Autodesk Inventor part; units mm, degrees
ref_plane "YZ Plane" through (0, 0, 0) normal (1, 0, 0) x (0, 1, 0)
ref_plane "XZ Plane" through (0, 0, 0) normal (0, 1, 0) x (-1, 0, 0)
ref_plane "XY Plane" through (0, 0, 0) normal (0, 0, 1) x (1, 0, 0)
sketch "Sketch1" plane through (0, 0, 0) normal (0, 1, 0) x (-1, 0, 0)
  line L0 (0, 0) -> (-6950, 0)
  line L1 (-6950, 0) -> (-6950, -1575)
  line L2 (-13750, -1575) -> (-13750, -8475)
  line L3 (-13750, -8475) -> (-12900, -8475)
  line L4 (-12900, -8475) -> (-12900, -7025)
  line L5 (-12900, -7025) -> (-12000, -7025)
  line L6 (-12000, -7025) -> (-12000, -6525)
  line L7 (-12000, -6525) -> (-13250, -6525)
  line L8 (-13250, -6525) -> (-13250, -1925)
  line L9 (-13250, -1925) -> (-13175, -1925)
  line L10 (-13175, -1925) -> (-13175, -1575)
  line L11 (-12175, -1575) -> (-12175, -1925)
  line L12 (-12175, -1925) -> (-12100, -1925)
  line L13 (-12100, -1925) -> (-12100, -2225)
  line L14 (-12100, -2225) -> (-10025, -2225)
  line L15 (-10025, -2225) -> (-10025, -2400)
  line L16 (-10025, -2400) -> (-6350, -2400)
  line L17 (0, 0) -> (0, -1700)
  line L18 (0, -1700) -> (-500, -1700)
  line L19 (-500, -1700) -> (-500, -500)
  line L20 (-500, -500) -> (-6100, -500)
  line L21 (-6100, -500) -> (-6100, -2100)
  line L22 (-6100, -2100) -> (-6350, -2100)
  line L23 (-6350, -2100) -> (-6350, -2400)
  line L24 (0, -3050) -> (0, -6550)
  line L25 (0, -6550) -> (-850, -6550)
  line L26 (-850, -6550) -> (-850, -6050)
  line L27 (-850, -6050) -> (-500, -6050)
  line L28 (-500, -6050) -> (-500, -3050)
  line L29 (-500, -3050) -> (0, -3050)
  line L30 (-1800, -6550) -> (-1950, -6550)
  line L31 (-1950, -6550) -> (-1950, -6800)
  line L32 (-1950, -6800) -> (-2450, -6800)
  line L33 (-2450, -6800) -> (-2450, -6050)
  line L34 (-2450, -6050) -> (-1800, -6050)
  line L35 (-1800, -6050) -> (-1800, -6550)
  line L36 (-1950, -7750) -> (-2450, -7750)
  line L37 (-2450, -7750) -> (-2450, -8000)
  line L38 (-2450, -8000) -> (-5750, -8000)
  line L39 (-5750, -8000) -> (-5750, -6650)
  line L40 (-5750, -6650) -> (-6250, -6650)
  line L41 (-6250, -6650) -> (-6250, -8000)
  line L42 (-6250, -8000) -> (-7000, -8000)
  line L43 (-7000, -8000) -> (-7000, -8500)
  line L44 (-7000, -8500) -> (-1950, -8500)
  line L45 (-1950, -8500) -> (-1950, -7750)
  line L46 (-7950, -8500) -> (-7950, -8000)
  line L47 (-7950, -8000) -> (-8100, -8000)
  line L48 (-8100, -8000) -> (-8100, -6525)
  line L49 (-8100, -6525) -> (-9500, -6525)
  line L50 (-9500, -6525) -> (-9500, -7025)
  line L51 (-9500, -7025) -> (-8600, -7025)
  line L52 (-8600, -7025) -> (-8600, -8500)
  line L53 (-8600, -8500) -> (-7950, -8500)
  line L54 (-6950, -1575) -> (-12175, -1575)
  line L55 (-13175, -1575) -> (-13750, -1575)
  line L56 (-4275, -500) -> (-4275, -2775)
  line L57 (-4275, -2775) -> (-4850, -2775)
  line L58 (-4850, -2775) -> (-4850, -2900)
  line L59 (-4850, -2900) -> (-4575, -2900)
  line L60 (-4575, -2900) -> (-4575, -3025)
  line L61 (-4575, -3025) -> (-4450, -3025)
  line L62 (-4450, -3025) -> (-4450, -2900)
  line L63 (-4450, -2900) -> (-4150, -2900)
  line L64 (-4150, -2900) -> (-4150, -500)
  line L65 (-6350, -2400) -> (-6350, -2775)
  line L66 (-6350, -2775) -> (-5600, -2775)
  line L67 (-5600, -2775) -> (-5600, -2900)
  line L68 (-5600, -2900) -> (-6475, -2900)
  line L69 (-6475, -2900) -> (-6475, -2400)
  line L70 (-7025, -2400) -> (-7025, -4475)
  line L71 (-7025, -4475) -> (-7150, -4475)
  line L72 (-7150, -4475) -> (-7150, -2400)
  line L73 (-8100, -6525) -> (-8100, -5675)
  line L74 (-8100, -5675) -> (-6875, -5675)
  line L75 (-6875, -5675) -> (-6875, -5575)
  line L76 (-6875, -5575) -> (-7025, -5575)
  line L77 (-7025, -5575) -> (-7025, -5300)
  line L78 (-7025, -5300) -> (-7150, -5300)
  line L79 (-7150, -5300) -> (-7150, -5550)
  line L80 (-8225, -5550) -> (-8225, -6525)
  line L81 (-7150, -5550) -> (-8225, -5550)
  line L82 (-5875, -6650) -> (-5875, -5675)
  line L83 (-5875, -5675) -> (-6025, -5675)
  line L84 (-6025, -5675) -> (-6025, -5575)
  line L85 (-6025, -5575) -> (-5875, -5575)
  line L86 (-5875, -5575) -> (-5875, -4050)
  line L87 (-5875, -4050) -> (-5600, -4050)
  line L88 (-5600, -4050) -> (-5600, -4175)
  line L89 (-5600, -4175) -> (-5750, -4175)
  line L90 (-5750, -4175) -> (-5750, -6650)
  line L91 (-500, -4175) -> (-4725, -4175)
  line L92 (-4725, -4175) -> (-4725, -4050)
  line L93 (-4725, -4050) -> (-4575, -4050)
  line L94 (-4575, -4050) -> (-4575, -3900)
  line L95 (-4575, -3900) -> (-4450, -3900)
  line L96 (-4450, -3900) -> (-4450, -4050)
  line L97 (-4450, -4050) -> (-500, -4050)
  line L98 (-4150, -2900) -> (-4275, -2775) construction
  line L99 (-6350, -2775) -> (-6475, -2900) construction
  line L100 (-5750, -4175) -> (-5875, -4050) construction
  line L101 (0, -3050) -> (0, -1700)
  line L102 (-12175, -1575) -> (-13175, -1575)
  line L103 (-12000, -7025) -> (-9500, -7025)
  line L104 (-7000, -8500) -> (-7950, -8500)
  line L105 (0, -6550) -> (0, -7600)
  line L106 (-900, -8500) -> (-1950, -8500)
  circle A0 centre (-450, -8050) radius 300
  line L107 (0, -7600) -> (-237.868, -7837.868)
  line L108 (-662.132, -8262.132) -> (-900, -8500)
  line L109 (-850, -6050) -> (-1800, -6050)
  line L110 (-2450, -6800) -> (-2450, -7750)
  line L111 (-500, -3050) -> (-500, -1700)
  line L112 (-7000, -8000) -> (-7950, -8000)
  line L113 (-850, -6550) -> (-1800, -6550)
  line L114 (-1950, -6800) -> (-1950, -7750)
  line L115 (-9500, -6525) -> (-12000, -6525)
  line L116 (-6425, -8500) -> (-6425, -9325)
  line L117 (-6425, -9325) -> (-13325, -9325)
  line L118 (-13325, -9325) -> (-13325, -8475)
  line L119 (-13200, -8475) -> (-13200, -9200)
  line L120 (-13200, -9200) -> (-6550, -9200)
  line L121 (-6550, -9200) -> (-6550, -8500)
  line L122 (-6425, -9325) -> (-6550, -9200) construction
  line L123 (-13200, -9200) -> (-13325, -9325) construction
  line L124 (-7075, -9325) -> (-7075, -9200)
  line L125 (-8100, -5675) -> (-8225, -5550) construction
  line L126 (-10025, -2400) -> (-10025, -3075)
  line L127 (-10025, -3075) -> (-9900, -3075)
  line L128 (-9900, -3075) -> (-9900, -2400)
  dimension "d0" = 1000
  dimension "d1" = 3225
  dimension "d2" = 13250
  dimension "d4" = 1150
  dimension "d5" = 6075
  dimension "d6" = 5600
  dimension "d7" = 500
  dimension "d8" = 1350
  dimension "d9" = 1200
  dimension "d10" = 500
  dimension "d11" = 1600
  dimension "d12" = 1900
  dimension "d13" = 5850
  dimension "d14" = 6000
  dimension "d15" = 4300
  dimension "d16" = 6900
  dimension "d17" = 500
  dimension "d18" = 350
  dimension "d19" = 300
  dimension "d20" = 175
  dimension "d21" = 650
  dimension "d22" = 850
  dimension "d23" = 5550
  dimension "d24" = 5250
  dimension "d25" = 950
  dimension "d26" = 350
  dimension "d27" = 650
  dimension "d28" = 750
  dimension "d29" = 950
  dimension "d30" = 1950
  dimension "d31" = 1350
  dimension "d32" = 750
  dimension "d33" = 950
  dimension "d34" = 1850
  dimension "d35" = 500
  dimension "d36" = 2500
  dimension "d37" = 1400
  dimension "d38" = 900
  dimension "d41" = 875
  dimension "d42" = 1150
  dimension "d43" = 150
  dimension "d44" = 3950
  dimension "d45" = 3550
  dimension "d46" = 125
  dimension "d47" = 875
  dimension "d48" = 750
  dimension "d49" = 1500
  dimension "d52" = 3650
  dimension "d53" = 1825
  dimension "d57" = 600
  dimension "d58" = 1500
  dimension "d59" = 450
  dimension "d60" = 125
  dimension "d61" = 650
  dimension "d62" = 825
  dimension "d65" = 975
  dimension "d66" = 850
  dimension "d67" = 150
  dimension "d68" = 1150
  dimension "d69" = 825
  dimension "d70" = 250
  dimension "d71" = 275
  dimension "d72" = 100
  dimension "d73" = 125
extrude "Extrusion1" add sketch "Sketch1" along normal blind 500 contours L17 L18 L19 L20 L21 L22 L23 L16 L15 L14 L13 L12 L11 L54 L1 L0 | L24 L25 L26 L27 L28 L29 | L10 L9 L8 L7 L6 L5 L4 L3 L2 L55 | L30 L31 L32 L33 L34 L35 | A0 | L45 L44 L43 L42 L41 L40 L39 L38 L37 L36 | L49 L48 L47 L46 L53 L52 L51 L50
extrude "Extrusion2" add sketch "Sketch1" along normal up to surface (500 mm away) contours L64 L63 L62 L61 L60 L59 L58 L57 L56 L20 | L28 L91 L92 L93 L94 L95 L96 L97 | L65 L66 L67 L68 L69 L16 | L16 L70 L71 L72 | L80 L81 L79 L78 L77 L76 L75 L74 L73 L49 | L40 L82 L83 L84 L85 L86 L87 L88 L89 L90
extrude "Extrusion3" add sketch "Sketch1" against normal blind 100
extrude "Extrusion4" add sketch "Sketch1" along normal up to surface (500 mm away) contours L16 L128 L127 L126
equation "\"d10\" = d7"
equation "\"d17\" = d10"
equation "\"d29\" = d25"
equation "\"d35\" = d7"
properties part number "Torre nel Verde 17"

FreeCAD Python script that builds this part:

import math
import FreeCAD as App
import Part
import Sketcher
from FreeCAD import Vector
Q = App.Units.Quantity


def add_polygon(sketch, points):
    """Adds a closed chain of lines whose ends are joined by coincident constraints."""
    first, n = sketch.GeometryCount, len(points)
    for a, b in zip(points, points[1:] + points[:1]):
        sketch.addGeometry(Part.LineSegment(App.Vector(*a, 0), App.Vector(*b, 0)), False)
    for i in range(n):
        sketch.addConstraint(Sketcher.Constraint("Coincident", first + i, 2, first + (i + 1) % n, 1))

doc = App.newDocument("Part")
body = doc.addObject("PartDesign::Body", "Body")
body.AllowCompound = True

sketch1 = doc.addObject("Sketcher::SketchObject", "Sketch")
body.addObject(sketch1)
sketch1.AttachmentSupport = (doc.XZ_Plane, [""])
sketch1.MapMode = "FlatFace"
add_polygon(sketch1, [(0, -1700), (0, 0), (6950, 0), (6950, -1575), (12175, -1575), (12175, -1925), (12100, -1925), (12100, -2225), (10025, -2225), (10025, -2400), (6350, -2400), (6350, -2100), (6100, -2100), (6100, -500), (500, -500), (500, -1700)])
add_polygon(sketch1, [(0, -6550), (0, -3050), (500, -3050), (500, -6050), (850, -6050), (850, -6550)])
add_polygon(sketch1, [(13175, -1925), (13175, -1575), (13750, -1575), (13750, -8475), (12900, -8475), (12900, -7025), (12000, -7025), (12000, -6525), (13250, -6525), (13250, -1925)])
add_polygon(sketch1, [(1950, -6550), (1800, -6550), (1800, -6050), (2450, -6050), (2450, -6800), (1950, -6800)])
sketch1.addGeometry(Part.Circle(Vector(450, -8050, 0), Vector(0, 0, 1), 300), False)
add_polygon(sketch1, [(1950, -8500), (1950, -7750), (2450, -7750), (2450, -8000), (5750, -8000), (5750, -6650), (6250, -6650), (6250, -8000), (7000, -8000), (7000, -8500)])
add_polygon(sketch1, [(8100, -6525), (9500, -6525), (9500, -7025), (8600, -7025), (8600, -8500), (7950, -8500), (7950, -8000), (8100, -8000)])
sketch1.addConstraint([
    Sketcher.Constraint("Vertical", 0),
    Sketcher.Constraint("Horizontal", 1),
    Sketcher.Constraint("Vertical", 2),
    Sketcher.Constraint("Horizontal", 3),
    Sketcher.Constraint("Vertical", 4),
    Sketcher.Constraint("Horizontal", 5),
    Sketcher.Constraint("Vertical", 6),
    Sketcher.Constraint("Horizontal", 7),
    Sketcher.Constraint("Vertical", 8),
    Sketcher.Constraint("Horizontal", 9),
    Sketcher.Constraint("Vertical", 10),
    Sketcher.Constraint("Horizontal", 11),
    Sketcher.Constraint("Vertical", 12),
    Sketcher.Constraint("Horizontal", 13),
    Sketcher.Constraint("Vertical", 14),
    Sketcher.Constraint("Horizontal", 15),
    Sketcher.Constraint("Vertical", 16),
    Sketcher.Constraint("Horizontal", 17),
    Sketcher.Constraint("Vertical", 18),
    Sketcher.Constraint("Horizontal", 19),
    Sketcher.Constraint("Vertical", 20),
    Sketcher.Constraint("Horizontal", 21),
    Sketcher.Constraint("Vertical", 22),
    Sketcher.Constraint("Horizontal", 23),
    Sketcher.Constraint("Vertical", 24),
    Sketcher.Constraint("Horizontal", 25),
    Sketcher.Constraint("Vertical", 26),
    Sketcher.Constraint("Horizontal", 27),
    Sketcher.Constraint("Vertical", 28),
    Sketcher.Constraint("Horizontal", 29),
    Sketcher.Constraint("Vertical", 30),
    Sketcher.Constraint("Horizontal", 31),
    Sketcher.Constraint("Horizontal", 32),
    Sketcher.Constraint("Vertical", 33),
    Sketcher.Constraint("Horizontal", 34),
    Sketcher.Constraint("Vertical", 35),
    Sketcher.Constraint("Horizontal", 36),
    Sketcher.Constraint("Vertical", 37),
    Sketcher.Constraint("Vertical", 39),
    Sketcher.Constraint("Horizontal", 40),
    Sketcher.Constraint("Vertical", 41),
    Sketcher.Constraint("Horizontal", 42),
    Sketcher.Constraint("Vertical", 43),
    Sketcher.Constraint("Horizontal", 44),
    Sketcher.Constraint("Vertical", 45),
    Sketcher.Constraint("Horizontal", 46),
    Sketcher.Constraint("Vertical", 47),
    Sketcher.Constraint("Horizontal", 48),
    Sketcher.Constraint("Horizontal", 49),
    Sketcher.Constraint("Vertical", 50),
    Sketcher.Constraint("Horizontal", 51),
    Sketcher.Constraint("Vertical", 52),
    Sketcher.Constraint("Horizontal", 53),
    Sketcher.Constraint("Vertical", 54),
    Sketcher.Constraint("Horizontal", 55),
    Sketcher.Constraint("Vertical", 56),
    Sketcher.Constraint("Coincident", 0, 2, -1, 1),
    Sketcher.Constraint("PointOnObject", 16, 2, -2),
    Sketcher.Constraint("Horizontal", 3, 2, 22, 2),
    Sketcher.Constraint("Horizontal", 5, 2, 30, 2),
    Sketcher.Constraint("Horizontal", 21, 2, 32, 2),
    Sketcher.Constraint("Horizontal", 19, 2, 33, 2),
    Sketcher.Constraint("Horizontal", 42, 2, 45, 2),
    Sketcher.Constraint("Horizontal", 29, 2, 49, 2),
    Sketcher.Constraint("Horizontal", 27, 2, 50, 2),
    Sketcher.Constraint("Horizontal", 48, 2, 52, 2),
    Sketcher.Constraint("Horizontal", 46, 2, 54, 2),
    Sketcher.Constraint("Vertical", 14, 2, 17, 2),
    Sketcher.Constraint("Vertical", 37, 2, 39, 2),
    Sketcher.Constraint("Vertical", 35, 2, 40, 2),
    Sketcher.Constraint("Equal", 21, 25),
    Sketcher.Constraint("Equal", 5, 31),
    Sketcher.Constraint("Equal", 17, 36),
    Sketcher.Constraint("Equal", 40, 44),
    Sketcher.Constraint("Equal", 27, 51),
    Sketcher.Constraint("Equal", 34, 53),
    Sketcher.Constraint("Equal", 32, 55),
    Sketcher.Constraint("Equal", 19, 4),
    Sketcher.Constraint("Equal", 6, 10),
    Sketcher.Constraint("Equal", 44, 20),
    Sketcher.Constraint("Equal", 20, 28),
    Sketcher.Constraint("Equal", 46, 35),
    Sketcher.Constraint("Equal", 11, 37),
    Sketcher.Constraint("Equal", 35, 39),
    Sketcher.Constraint("Equal", 37, 41),
    Sketcher.Constraint("Diameter", 38, Q("600 mm")),
    Sketcher.Constraint("DistanceX", 11, 2, 11, 1, Q("250 mm")),
    Sketcher.Constraint("DistanceX", 13, 2, 13, 1, Q("5600 mm")),
    Sketcher.Constraint("DistanceX", 15, 2, 15, 1, Q("500 mm")),
    Sketcher.Constraint("DistanceX", 19, 1, 19, 2, Q("350 mm")),
    Sketcher.Constraint("DistanceX", 27, 2, 27, 1, Q("900 mm")),
    Sketcher.Constraint("DistanceX", 32, 2, 32, 1, Q("150 mm")),
    Sketcher.Constraint("DistanceY", 6, 2, 6, 1, Q("300 mm")),
    Sketcher.Constraint("DistanceY", 8, 2, 8, 1, Q("175 mm")),
    Sketcher.Constraint("DistanceY", 12, 1, 12, 2, Q("1600 mm")),
    Sketcher.Constraint("DistanceY", 14, 2, 14, 1, Q("1200 mm")),
    Sketcher.Constraint("DistanceY", 24, 2, 24, 1, Q("6900 mm")),
    Sketcher.Constraint("DistanceY", 43, 1, 43, 2, Q("1350 mm")),
    Sketcher.Constraint("DistanceX", -1, 1, 38, 3, Q("450 mm")),
    Sketcher.Constraint("DistanceY", 12, 2, -1, 1, Q("500 mm")),
    Sketcher.Constraint("DistanceX", -1, 1, 29, 2, Q("13250 mm")),
    Sketcher.Constraint("DistanceX", -1, 1, 36, 2, Q("1950 mm")),
    Sketcher.Constraint("DistanceX", 9, 2, 2, 2, Q("600 mm")),
    Sketcher.Constraint("DistanceY", 16, 2, 15, 2, Q("1350 mm")),
    Sketcher.Constraint("DistanceY", 38, 3, 20, 2, Q("1500 mm")),
    Sketcher.Constraint("DistanceX", 3, 2, 22, 2, Q("1000 mm")),
    Sketcher.Constraint("DistanceX", 27, 2, 6, 2, Q("100 mm")),
    Sketcher.Constraint("DistanceY", 25, 2, 28, 2, Q("1950 mm")),
    Sketcher.Constraint("DistanceX", 26, 2, 29, 2, Q("350 mm")),
    Sketcher.Constraint("DistanceY", 39, 2, 36, 2, Q("950 mm")),
    Sketcher.Constraint("DistanceX", 49, 2, 28, 2, Q("2500 mm")),
    Sketcher.Constraint("DistanceX", 46, 2, 49, 2, Q("2500 mm")),
    Sketcher.Constraint("DistanceY", 44, 2, 49, 2, Q("125 mm")),
    Sketcher.Constraint("DistanceX", 7, 2, 7, 1, Q("2075 mm")),
])
pad1 = doc.addObject("PartDesign::Pad", "Pad")
body.addObject(pad1)
pad1.Profile = sketch1
pad1.Length = 500
pad1.Reversed = True

sketch2 = doc.addObject("Sketcher::SketchObject", "Sketch001")
body.addObject(sketch2)
sketch2.AttachmentSupport = (doc.XZ_Plane, [""])
sketch2.MapMode = "FlatFace"
add_polygon(sketch2, [(4150, -2900), (4150, -500), (4275, -500), (4275, -2775), (4850, -2775), (4850, -2900), (4575, -2900), (4575, -3025), (4450, -3025), (4450, -2900)])
add_polygon(sketch2, [(500, -4175), (500, -4050), (4450, -4050), (4450, -3900), (4575, -3900), (4575, -4050), (4725, -4050), (4725, -4175)])
add_polygon(sketch2, [(6350, -2775), (6350, -2400), (6475, -2400), (6475, -2900), (5600, -2900), (5600, -2775)])
add_polygon(sketch2, [(7025, -2400), (7150, -2400), (7150, -4475), (7025, -4475)])
add_polygon(sketch2, [(8225, -5550), (8225, -6525), (8100, -6525), (8100, -5675), (6875, -5675), (6875, -5575), (7025, -5575), (7025, -5300), (7150, -5300), (7150, -5550)])
add_polygon(sketch2, [(5875, -6650), (5750, -6650), (5750, -4175), (5600, -4175), (5600, -4050), (5875, -4050), (5875, -5575), (6025, -5575), (6025, -5675), (5875, -5675)])
sketch2.addConstraint([
    Sketcher.Constraint("Vertical", 0),
    Sketcher.Constraint("Horizontal", 1),
    Sketcher.Constraint("Vertical", 2),
    Sketcher.Constraint("Horizontal", 3),
    Sketcher.Constraint("Vertical", 4),
    Sketcher.Constraint("Horizontal", 5),
    Sketcher.Constraint("Vertical", 6),
    Sketcher.Constraint("Horizontal", 7),
    Sketcher.Constraint("Vertical", 8),
    Sketcher.Constraint("Horizontal", 9),
    Sketcher.Constraint("Vertical", 10),
    Sketcher.Constraint("Horizontal", 11),
    Sketcher.Constraint("Vertical", 12),
    Sketcher.Constraint("Horizontal", 13),
    Sketcher.Constraint("Vertical", 14),
    Sketcher.Constraint("Horizontal", 15),
    Sketcher.Constraint("Vertical", 16),
    Sketcher.Constraint("Horizontal", 17),
    Sketcher.Constraint("Vertical", 18),
    Sketcher.Constraint("Horizontal", 19),
    Sketcher.Constraint("Vertical", 20),
    Sketcher.Constraint("Horizontal", 21),
    Sketcher.Constraint("Vertical", 22),
    Sketcher.Constraint("Horizontal", 23),
    Sketcher.Constraint("Horizontal", 24),
    Sketcher.Constraint("Vertical", 25),
    Sketcher.Constraint("Horizontal", 26),
    Sketcher.Constraint("Vertical", 27),
    Sketcher.Constraint("Vertical", 28),
    Sketcher.Constraint("Horizontal", 29),
    Sketcher.Constraint("Vertical", 30),
    Sketcher.Constraint("Horizontal", 31),
    Sketcher.Constraint("Vertical", 32),
    Sketcher.Constraint("Horizontal", 33),
    Sketcher.Constraint("Vertical", 34),
    Sketcher.Constraint("Horizontal", 35),
    Sketcher.Constraint("Vertical", 36),
    Sketcher.Constraint("Horizontal", 37),
    Sketcher.Constraint("Horizontal", 38),
    Sketcher.Constraint("Vertical", 39),
    Sketcher.Constraint("Horizontal", 40),
    Sketcher.Constraint("Vertical", 41),
    Sketcher.Constraint("Horizontal", 42),
    Sketcher.Constraint("Vertical", 43),
    Sketcher.Constraint("Horizontal", 44),
    Sketcher.Constraint("Vertical", 45),
    Sketcher.Constraint("Horizontal", 46),
    Sketcher.Constraint("Vertical", 47),
    Sketcher.Constraint("Horizontal", 5, 2, 8, 2),
    Sketcher.Constraint("Horizontal", 11, 2, 14, 2),
    Sketcher.Constraint("Horizontal", 9, 2, 20, 2),
    Sketcher.Constraint("Horizontal", 3, 2, 22, 2),
    Sketcher.Constraint("Horizontal", 19, 2, 24, 2),
    Sketcher.Constraint("Horizontal", 17, 2, 39, 2),
    Sketcher.Constraint("Horizontal", 15, 2, 41, 2),
    Sketcher.Constraint("Horizontal", 33, 2, 43, 2),
    Sketcher.Constraint("Horizontal", 31, 2, 45, 2),
    Sketcher.Constraint("Vertical", 8, 2, 11, 2),
    Sketcher.Constraint("Vertical", 6, 2, 13, 2),
    Sketcher.Constraint("Vertical", 27, 2, 33, 2),
    Sketcher.Constraint("Vertical", 25, 2, 35, 2),
    Sketcher.Constraint("Vertical", 22, 2, 40, 2),
    Sketcher.Constraint("Vertical", 43, 2, 46, 2),
    Sketcher.Constraint("Equal", 1, 7),
    Sketcher.Constraint("Equal", 13, 19),
    Sketcher.Constraint("Equal", 19, 24),
    Sketcher.Constraint("Equal", 26, 29),
    Sketcher.Constraint("Equal", 15, 33),
    Sketcher.Constraint("Equal", 35, 38),
    Sketcher.Constraint("Equal", 33, 40),
    Sketcher.Constraint("Equal", 5, 42),
    Sketcher.Constraint("Equal", 40, 44),
    Sketcher.Constraint("Equal", 38, 4),
    Sketcher.Constraint("Equal", 4, 6),
    Sketcher.Constraint("Equal", 8, 10),
    Sketcher.Constraint("Equal", 46, 12),
    Sketcher.Constraint("Equal", 42, 34),
    Sketcher.Constraint("Equal", 28, 47),
    Sketcher.Constraint("DistanceX", 1, 1, 1, 2, Q("125 mm")),
    Sketcher.Constraint("DistanceX", 5, 2, 5, 1, Q("275 mm")),
    Sketcher.Constraint("DistanceX", 9, 2, 9, 1, Q("300 mm")),
    Sketcher.Constraint("DistanceX", 11, 1, 11, 2, Q("3950 mm")),
    Sketcher.Constraint("DistanceX", 21, 2, 21, 1, Q("875 mm")),
    Sketcher.Constraint("DistanceY", 20, 2, 20, 1, Q("500 mm")),
    Sketcher.Constraint("DistanceY", 28, 2, 28, 1, Q("975 mm")),
    Sketcher.Constraint("DistanceY", 30, 1, 30, 2, Q("850 mm")),
    Sketcher.Constraint("DistanceY", 32, 1, 32, 2, Q("100 mm")),
    Sketcher.Constraint("DistanceY", 0, 2, -1, 1, Q("500 mm")),
    Sketcher.Constraint("DistanceX", -1, 1, 10, 2, Q("500 mm")),
    Sketcher.Constraint("DistanceX", -1, 1, 21, 2, Q("5600 mm")),
    Sketcher.Constraint("DistanceY", 36, 2, -1, 1, Q("5550 mm")),
    Sketcher.Constraint("DistanceY", 10, 2, 9, 2, Q("1150 mm")),
    Sketcher.Constraint("DistanceX", 26, 2, 28, 2, Q("1200 mm")),
    Sketcher.Constraint("DistanceY", 30, 2, 25, 2, Q("1200 mm")),
    Sketcher.Constraint("DistanceX", 38, 2, 36, 2, Q("1400 mm")),
    Sketcher.Constraint("DistanceY", 0, 1, 0, 2, Q("2400 mm")),
])
pad2 = doc.addObject("PartDesign::Pad", "Pad001")
body.addObject(pad2)
pad2.Profile = sketch2
pad2.Length = 500
pad2.Reversed = True

sketch3 = doc.addObject("Sketcher::SketchObject", "Sketch002")
body.addObject(sketch3)
sketch3.AttachmentSupport = (doc.XZ_Plane, [""])
sketch3.MapMode = "FlatFace"
sketch3.addGeometry([
    Part.LineSegment(Vector(0, 0, 0), Vector(6950, 0, 0)),
    Part.LineSegment(Vector(6950, 0, 0), Vector(6950, -1575, 0)),
    Part.LineSegment(Vector(6950, -1575, 0), Vector(13750, -1575, 0)),
    Part.LineSegment(Vector(13750, -1575, 0), Vector(13750, -8475, 0)),
    Part.LineSegment(Vector(13750, -8475, 0), Vector(13325, -8475, 0)),
    Part.LineSegment(Vector(13325, -8475, 0), Vector(13325, -9325, 0)),
    Part.LineSegment(Vector(13325, -9325, 0), Vector(6425, -9325, 0)),
    Part.LineSegment(Vector(6425, -9325, 0), Vector(6425, -8500, 0)),
    Part.LineSegment(Vector(6425, -8500, 0), Vector(900, -8500, 0)),
    Part.LineSegment(Vector(900, -8500, 0), Vector(662, -8262, 0)),
    Part.ArcOfCircle(Part.Circle(Vector(450, -8050, 0), Vector(0, 0, 1), 300), math.radians(135), math.radians(315)),
    Part.LineSegment(Vector(238, -7838, 0), Vector(0, -7600, 0)),
    Part.LineSegment(Vector(0, -7600, 0), Vector(0, 0, 0)),
], False)
sketch3.addConstraint([
    Sketcher.Constraint("Coincident", 0, 2, 1, 1),
    Sketcher.Constraint("Coincident", 1, 2, 2, 1),
    Sketcher.Constraint("Coincident", 2, 2, 3, 1),
    Sketcher.Constraint("Coincident", 3, 2, 4, 1),
    Sketcher.Constraint("Coincident", 4, 2, 5, 1),
    Sketcher.Constraint("Coincident", 5, 2, 6, 1),
    Sketcher.Constraint("Coincident", 6, 2, 7, 1),
    Sketcher.Constraint("Coincident", 7, 2, 8, 1),
    Sketcher.Constraint("Coincident", 8, 2, 9, 1),
    Sketcher.Constraint("Coincident", 9, 2, 10, 2),
    Sketcher.Constraint("Coincident", 10, 1, 11, 1),
    Sketcher.Constraint("Coincident", 11, 2, 12, 1),
    Sketcher.Constraint("Coincident", 12, 2, 0, 1),
    Sketcher.Constraint("Horizontal", 0),
    Sketcher.Constraint("Vertical", 1),
    Sketcher.Constraint("Horizontal", 2),
    Sketcher.Constraint("Vertical", 3),
    Sketcher.Constraint("Horizontal", 4),
    Sketcher.Constraint("Vertical", 5),
    Sketcher.Constraint("Horizontal", 6),
    Sketcher.Constraint("Vertical", 7),
    Sketcher.Constraint("Horizontal", 8),
    Sketcher.Constraint("Vertical", 12),
    Sketcher.Constraint("Coincident", 12, 2, -1, 1),
    Sketcher.Constraint("Parallel", 9, 11),
    Sketcher.Constraint("Equal", 6, 3),
    Sketcher.Constraint("Equal", 9, 11),
    Sketcher.Constraint("Radius", 10, Q("300 mm")),
    Sketcher.Constraint("DistanceX", 6, 2, 6, 1, Q("6900 mm")),
    Sketcher.Constraint("DistanceY", 5, 2, 5, 1, Q("850 mm")),
    Sketcher.Constraint("DistanceY", 7, 1, 7, 2, Q("825 mm")),
    Sketcher.Constraint("DistanceX", -1, 1, 10, 3, Q("450 mm")),
    Sketcher.Constraint("DistanceX", -1, 1, 8, 2, Q("900 mm")),
    Sketcher.Constraint("DistanceY", 7, 2, 10, 3, Q("450 mm")),
    Sketcher.Constraint("DistanceX", 0, 1, 0, 2, Q("6950 mm")),
    Sketcher.Constraint("DistanceX", 2, 1, 2, 2, Q("6800 mm")),
    Sketcher.Constraint("DistanceX", 4, 2, 4, 1, Q("425 mm")),
    Sketcher.Constraint("DistanceY", 1, 2, 1, 1, Q("1575 mm")),
    Sketcher.Constraint("Angle", 9, Q("135 deg")),
])
pad3 = doc.addObject("PartDesign::Pad", "Pad002")
body.addObject(pad3)
pad3.Profile = sketch3
pad3.Length = 100

sketch4 = doc.addObject("Sketcher::SketchObject", "Sketch003")
body.addObject(sketch4)
sketch4.AttachmentSupport = (doc.XZ_Plane, [""])
sketch4.MapMode = "FlatFace"
add_polygon(sketch4, [(9900, -2400), (10025, -2400), (10025, -3075), (9900, -3075)])
sketch4.addConstraint([
    Sketcher.Constraint("Horizontal", 0),
    Sketcher.Constraint("Vertical", 1),
    Sketcher.Constraint("Horizontal", 2),
    Sketcher.Constraint("Vertical", 3),
    Sketcher.Constraint("DistanceX", 0, 1, 0, 2, Q("125 mm")),
    Sketcher.Constraint("DistanceY", 1, 2, 1, 1, Q("675 mm")),
    Sketcher.Constraint("DistanceX", -1, 1, 0, 2, Q("10025 mm")),
    Sketcher.Constraint("DistanceY", 0, 2, -1, 1, Q("2400 mm")),
])
pad4 = doc.addObject("PartDesign::Pad", "Pad003")
body.addObject(pad4)
pad4.Profile = sketch4
pad4.Length = 500
pad4.Reversed = True

doc.recompute()
